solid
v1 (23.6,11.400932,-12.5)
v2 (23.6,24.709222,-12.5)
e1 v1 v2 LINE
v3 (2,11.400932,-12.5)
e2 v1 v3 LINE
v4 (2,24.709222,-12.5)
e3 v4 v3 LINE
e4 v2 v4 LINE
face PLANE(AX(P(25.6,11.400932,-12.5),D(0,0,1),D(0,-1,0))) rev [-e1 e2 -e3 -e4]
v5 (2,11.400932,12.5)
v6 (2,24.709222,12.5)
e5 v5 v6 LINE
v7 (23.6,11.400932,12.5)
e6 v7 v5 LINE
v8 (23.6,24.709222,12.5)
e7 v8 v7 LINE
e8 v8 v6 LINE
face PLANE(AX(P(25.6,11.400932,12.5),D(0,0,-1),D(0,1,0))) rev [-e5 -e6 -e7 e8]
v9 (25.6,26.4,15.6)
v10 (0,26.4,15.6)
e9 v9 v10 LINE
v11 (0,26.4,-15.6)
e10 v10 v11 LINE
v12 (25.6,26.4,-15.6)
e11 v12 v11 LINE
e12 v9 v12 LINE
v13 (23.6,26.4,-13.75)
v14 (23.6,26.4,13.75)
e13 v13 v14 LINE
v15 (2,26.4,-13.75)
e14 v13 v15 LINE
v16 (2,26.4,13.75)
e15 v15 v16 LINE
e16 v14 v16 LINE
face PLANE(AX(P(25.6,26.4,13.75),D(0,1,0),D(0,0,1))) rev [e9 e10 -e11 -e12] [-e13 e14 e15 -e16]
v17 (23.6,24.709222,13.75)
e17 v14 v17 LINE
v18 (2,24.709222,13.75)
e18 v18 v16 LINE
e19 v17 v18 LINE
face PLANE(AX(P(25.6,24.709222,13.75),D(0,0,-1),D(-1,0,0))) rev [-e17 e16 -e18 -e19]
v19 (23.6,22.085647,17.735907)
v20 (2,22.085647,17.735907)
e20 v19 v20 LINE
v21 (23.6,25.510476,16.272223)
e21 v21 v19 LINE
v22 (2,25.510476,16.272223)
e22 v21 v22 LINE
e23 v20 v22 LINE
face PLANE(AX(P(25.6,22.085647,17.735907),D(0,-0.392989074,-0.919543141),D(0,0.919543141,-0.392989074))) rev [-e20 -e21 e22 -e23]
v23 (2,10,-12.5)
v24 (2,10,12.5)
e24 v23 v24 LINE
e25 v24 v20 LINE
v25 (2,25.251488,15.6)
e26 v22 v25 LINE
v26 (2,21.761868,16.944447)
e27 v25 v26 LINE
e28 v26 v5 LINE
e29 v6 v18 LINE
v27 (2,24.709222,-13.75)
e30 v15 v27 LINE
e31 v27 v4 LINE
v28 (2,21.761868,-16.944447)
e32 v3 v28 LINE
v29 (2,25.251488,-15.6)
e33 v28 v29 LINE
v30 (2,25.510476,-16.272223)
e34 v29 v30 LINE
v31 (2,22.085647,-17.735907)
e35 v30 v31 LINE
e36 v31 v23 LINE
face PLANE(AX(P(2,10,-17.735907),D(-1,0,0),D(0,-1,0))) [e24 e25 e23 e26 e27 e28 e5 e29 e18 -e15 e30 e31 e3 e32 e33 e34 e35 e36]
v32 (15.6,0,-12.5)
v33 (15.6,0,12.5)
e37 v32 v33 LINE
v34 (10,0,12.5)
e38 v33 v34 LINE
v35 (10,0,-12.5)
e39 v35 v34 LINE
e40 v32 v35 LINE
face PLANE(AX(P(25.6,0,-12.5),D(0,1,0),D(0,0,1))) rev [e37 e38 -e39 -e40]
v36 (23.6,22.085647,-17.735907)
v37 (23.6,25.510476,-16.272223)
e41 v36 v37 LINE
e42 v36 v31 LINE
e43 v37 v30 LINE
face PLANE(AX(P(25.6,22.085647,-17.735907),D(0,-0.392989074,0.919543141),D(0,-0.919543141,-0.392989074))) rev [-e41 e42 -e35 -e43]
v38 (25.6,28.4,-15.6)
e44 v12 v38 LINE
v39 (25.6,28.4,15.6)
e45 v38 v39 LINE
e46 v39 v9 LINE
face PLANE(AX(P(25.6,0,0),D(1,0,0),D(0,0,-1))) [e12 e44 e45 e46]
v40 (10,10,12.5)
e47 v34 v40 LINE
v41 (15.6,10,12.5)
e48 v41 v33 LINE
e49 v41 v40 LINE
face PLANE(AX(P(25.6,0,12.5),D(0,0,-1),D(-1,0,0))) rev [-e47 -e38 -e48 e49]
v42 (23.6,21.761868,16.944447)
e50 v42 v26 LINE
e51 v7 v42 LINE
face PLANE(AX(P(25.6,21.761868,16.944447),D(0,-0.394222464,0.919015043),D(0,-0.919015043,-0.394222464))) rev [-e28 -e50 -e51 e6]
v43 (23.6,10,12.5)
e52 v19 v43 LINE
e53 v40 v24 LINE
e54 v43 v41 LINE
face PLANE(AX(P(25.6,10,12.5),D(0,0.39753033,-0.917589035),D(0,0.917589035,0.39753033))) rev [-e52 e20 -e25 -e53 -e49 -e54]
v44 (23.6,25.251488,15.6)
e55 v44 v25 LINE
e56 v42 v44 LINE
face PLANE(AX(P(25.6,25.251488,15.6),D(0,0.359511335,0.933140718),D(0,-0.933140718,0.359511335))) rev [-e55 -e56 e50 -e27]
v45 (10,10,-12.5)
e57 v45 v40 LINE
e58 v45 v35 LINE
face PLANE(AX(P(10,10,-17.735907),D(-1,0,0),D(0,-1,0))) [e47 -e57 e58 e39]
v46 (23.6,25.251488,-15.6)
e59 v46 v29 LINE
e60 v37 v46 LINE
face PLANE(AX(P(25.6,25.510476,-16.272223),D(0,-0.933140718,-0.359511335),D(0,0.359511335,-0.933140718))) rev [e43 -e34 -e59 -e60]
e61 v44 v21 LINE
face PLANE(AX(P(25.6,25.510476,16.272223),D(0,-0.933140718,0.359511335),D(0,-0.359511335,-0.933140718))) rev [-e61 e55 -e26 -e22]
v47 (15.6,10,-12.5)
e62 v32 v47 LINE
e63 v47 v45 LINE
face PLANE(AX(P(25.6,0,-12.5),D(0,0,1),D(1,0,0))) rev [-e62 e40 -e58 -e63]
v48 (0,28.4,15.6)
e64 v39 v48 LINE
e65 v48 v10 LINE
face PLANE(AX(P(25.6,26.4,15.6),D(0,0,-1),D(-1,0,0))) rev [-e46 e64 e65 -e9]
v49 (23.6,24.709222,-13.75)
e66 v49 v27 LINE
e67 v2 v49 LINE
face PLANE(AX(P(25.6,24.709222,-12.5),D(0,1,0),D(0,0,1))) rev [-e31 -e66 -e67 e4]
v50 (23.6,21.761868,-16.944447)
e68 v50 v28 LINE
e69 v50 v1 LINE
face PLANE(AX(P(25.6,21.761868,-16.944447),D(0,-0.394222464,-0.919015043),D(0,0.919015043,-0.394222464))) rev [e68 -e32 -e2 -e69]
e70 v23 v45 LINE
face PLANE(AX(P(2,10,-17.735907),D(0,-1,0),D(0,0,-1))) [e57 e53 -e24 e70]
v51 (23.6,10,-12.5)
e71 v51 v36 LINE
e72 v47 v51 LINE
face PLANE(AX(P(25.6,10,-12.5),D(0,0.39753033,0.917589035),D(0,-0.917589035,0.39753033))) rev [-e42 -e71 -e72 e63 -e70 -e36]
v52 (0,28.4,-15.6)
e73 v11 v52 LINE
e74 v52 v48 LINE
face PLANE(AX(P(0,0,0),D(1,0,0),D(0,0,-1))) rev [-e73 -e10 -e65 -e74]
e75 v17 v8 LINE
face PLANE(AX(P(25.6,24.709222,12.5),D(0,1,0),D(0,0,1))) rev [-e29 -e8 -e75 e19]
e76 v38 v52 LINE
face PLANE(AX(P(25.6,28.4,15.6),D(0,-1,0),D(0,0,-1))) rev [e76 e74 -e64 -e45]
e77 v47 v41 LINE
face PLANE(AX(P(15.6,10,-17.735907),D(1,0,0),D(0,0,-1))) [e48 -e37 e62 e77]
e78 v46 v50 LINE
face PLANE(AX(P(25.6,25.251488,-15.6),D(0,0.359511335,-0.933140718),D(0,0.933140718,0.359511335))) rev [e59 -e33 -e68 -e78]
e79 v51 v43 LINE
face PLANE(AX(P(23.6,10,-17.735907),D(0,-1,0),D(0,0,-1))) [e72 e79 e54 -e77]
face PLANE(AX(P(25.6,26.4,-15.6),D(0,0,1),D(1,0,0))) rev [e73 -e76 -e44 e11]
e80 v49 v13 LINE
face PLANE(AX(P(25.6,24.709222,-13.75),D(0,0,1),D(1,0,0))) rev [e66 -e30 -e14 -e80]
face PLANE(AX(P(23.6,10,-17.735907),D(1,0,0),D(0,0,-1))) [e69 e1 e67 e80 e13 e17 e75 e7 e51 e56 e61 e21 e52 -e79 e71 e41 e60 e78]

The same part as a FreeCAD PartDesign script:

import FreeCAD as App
import Part
import Sketcher

doc = App.newDocument("Part")
body = doc.addObject("PartDesign::Body", "Body")

# Sketch on YZ plane
sketch1 = body.newObject("Sketcher::SketchObject", "Sketch")
sketch1.AttachmentSupport = (doc.getObject("YZ_Plane"), [""])
sketch1.MapMode = "FlatFace"
sketch1.addGeometry(Part.LineSegment(App.Vector(0, 12.5, 0), App.Vector(0, -12.5, 0)), False)
sketch1.addGeometry(Part.LineSegment(App.Vector(0, -12.5, 0), App.Vector(10, -12.5, 0)), False)
sketch1.addGeometry(Part.LineSegment(App.Vector(10, -12.5, 0), App.Vector(22.1, -17.7, 0)), False)
sketch1.addGeometry(Part.LineSegment(App.Vector(22.1, -17.7, 0), App.Vector(25.5, -16.3, 0)), False)
sketch1.addGeometry(Part.LineSegment(App.Vector(25.5, -16.3, 0), App.Vector(25.3, -15.6, 0)), False)
sketch1.addGeometry(Part.LineSegment(App.Vector(25.3, -15.6, 0), App.Vector(21.8, -16.9, 0)), False)
sketch1.addGeometry(Part.LineSegment(App.Vector(21.8, -16.9, 0), App.Vector(11.4, -12.5, 0)), False)
sketch1.addGeometry(Part.LineSegment(App.Vector(11.4, -12.5, 0), App.Vector(24.7, -12.5, 0)), False)
sketch1.addGeometry(Part.LineSegment(App.Vector(24.7, -12.5, 0), App.Vector(24.7, -13.8, 0)), False)
sketch1.addGeometry(Part.LineSegment(App.Vector(24.7, -13.8, 0), App.Vector(26.4, -13.8, 0)), False)
sketch1.addGeometry(Part.LineSegment(App.Vector(26.4, -13.8, 0), App.Vector(26.4, -15.6, 0)), False)
sketch1.addGeometry(Part.LineSegment(App.Vector(26.4, -15.6, 0), App.Vector(28.4, -15.6, 0)), False)
sketch1.addGeometry(Part.LineSegment(App.Vector(28.4, -15.6, 0), App.Vector(28.4, 15.6, 0)), False)
sketch1.addGeometry(Part.LineSegment(App.Vector(28.4, 15.6, 0), App.Vector(26.4, 15.6, 0)), False)
sketch1.addGeometry(Part.LineSegment(App.Vector(26.4, 15.6, 0), App.Vector(26.4, 13.8, 0)), False)
sketch1.addGeometry(Part.LineSegment(App.Vector(26.4, 13.8, 0), App.Vector(24.7, 13.8, 0)), False)
sketch1.addGeometry(Part.LineSegment(App.Vector(24.7, 13.8, 0), App.Vector(24.7, 12.5, 0)), False)
sketch1.addGeometry(Part.LineSegment(App.Vector(24.7, 12.5, 0), App.Vector(11.4, 12.5, 0)), False)
sketch1.addGeometry(Part.LineSegment(App.Vector(11.4, 12.5, 0), App.Vector(21.8, 16.9, 0)), False)
sketch1.addGeometry(Part.LineSegment(App.Vector(21.8, 16.9, 0), App.Vector(25.3, 15.6, 0)), False)
sketch1.addGeometry(Part.LineSegment(App.Vector(25.3, 15.6, 0), App.Vector(25.5, 16.3, 0)), False)
sketch1.addGeometry(Part.LineSegment(App.Vector(25.5, 16.3, 0), App.Vector(22.1, 17.7, 0)), False)
sketch1.addGeometry(Part.LineSegment(App.Vector(22.1, 17.7, 0), App.Vector(10, 12.5, 0)), False)
sketch1.addGeometry(Part.LineSegment(App.Vector(10, 12.5, 0), App.Vector(0, 12.5, 0)), False)
sketch1.addConstraint(Sketcher.Constraint("Coincident", 0, 2, 1, 1))
sketch1.addConstraint(Sketcher.Constraint("Coincident", 1, 2, 2, 1))
sketch1.addConstraint(Sketcher.Constraint("Coincident", 2, 2, 3, 1))
sketch1.addConstraint(Sketcher.Constraint("Coincident", 3, 2, 4, 1))
sketch1.addConstraint(Sketcher.Constraint("Coincident", 4, 2, 5, 1))
sketch1.addConstraint(Sketcher.Constraint("Coincident", 5, 2, 6, 1))
sketch1.addConstraint(Sketcher.Constraint("Coincident", 6, 2, 7, 1))
sketch1.addConstraint(Sketcher.Constraint("Coincident", 7, 2, 8, 1))
sketch1.addConstraint(Sketcher.Constraint("Coincident", 8, 2, 9, 1))
sketch1.addConstraint(Sketcher.Constraint("Coincident", 9, 2, 10, 1))
sketch1.addConstraint(Sketcher.Constraint("Coincident", 10, 2, 11, 1))
sketch1.addConstraint(Sketcher.Constraint("Coincident", 11, 2, 12, 1))
sketch1.addConstraint(Sketcher.Constraint("Coincident", 12, 2, 13, 1))
sketch1.addConstraint(Sketcher.Constraint("Coincident", 13, 2, 14, 1))
sketch1.addConstraint(Sketcher.Constraint("Coincident", 14, 2, 15, 1))
sketch1.addConstraint(Sketcher.Constraint("Coincident", 15, 2, 16, 1))
sketch1.addConstraint(Sketcher.Constraint("Coincident", 16, 2, 17, 1))
sketch1.addConstraint(Sketcher.Constraint("Coincident", 17, 2, 18, 1))
sketch1.addConstraint(Sketcher.Constraint("Coincident", 18, 2, 19, 1))
sketch1.addConstraint(Sketcher.Constraint("Coincident", 19, 2, 20, 1))
sketch1.addConstraint(Sketcher.Constraint("Coincident", 20, 2, 21, 1))
sketch1.addConstraint(Sketcher.Constraint("Coincident", 21, 2, 22, 1))
sketch1.addConstraint(Sketcher.Constraint("Coincident", 22, 2, 23, 1))
sketch1.addConstraint(Sketcher.Constraint("Coincident", 23, 2, 0, 1))
sketch1.addConstraint(Sketcher.Constraint("Vertical", 0))
sketch1.addConstraint(Sketcher.Constraint("Horizontal", 1))
sketch1.addConstraint(Sketcher.Constraint("Horizontal", 7))
sketch1.addConstraint(Sketcher.Constraint("Vertical", 8))
sketch1.addConstraint(Sketcher.Constraint("Horizontal", 9))
sketch1.addConstraint(Sketcher.Constraint("Vertical", 10))
sketch1.addConstraint(Sketcher.Constraint("Horizontal", 11))
sketch1.addConstraint(Sketcher.Constraint("Vertical", 12))
sketch1.addConstraint(Sketcher.Constraint("Horizontal", 13))
sketch1.addConstraint(Sketcher.Constraint("Vertical", 14))
sketch1.addConstraint(Sketcher.Constraint("Horizontal", 15))
sketch1.addConstraint(Sketcher.Constraint("Vertical", 16))
sketch1.addConstraint(Sketcher.Constraint("Horizontal", 17))
sketch1.addConstraint(Sketcher.Constraint("Horizontal", 23))
sketch1.addConstraint(Sketcher.Constraint("Symmetric", 0, 2, 23, 2, -1, 1))
sketch1.addConstraint(Sketcher.Constraint("Symmetric", 10, 2, 13, 2, -1))
sketch1.addConstraint(Sketcher.Constraint("Symmetric", 8, 2, 15, 2, -1))
sketch1.addConstraint(Sketcher.Constraint("Symmetric", 6, 2, 17, 2, -1))
sketch1.addConstraint(Sketcher.Constraint("Symmetric", 5, 2, 18, 2, -1))
sketch1.addConstraint(Sketcher.Constraint("Symmetric", 4, 2, 19, 2, -1))
sketch1.addConstraint(Sketcher.Constraint("Symmetric", 3, 2, 20, 2, -1))
sketch1.addConstraint(Sketcher.Constraint("Symmetric", 2, 2, 21, 2, -1))
sketch1.addConstraint(Sketcher.Constraint("Perpendicular", 4, 5))
sketch1.addConstraint(Sketcher.Constraint("Horizontal", 1, 2, 6, 2))
sketch1.addConstraint(Sketcher.Constraint("Horizontal", 4, 2, 10, 2))
sketch1.addConstraint(Sketcher.Constraint("Vertical", 1, 2, 22, 2))
sketch1.addConstraint(Sketcher.Constraint("DistanceX", 1, 1, 1, 2, 10.0))
sketch1.addConstraint(Sketcher.Constraint("DistanceX", 11, 1, 11, 2, 2.0))
sketch1.addConstraint(Sketcher.Constraint("DistanceY", 0, 2, 0, 1, 25.0))
sketch1.addConstraint(Sketcher.Constraint("DistanceY", 12, 1, 12, 2, 31.2))
sketch1.addConstraint(Sketcher.Constraint("DistanceY", 8, 2, 8, 1, 1.25))
sketch1.addConstraint(Sketcher.Constraint("DistanceX", -1, 1, 9, 2, 26.4))
sketch1.addConstraint(Sketcher.Constraint("DistanceX", 7, 1, 7, 2, 13.30829))
sketch1.addConstraint(Sketcher.Constraint("DistanceX", 9, 1, 9, 2, 1.690778))
sketch1.addConstraint(Sketcher.Constraint("Distance", 2, 13.171089))
sketch1.addConstraint(Sketcher.Constraint("Distance", 3, 3.72449))
sketch1.addConstraint(Sketcher.Constraint("Distance", 4, 0.720388))
sketch1.addConstraint(Sketcher.Constraint("Distance", 5, 3.739651))
sketch1.addConstraint(Sketcher.Constraint("DistanceX", -1, 1, 4, 2, 25.251488))
sketch1.addConstraint(Sketcher.Constraint("DistanceX", 2, 2, 3, 2, 3.424829))
pad1 = body.newObject("PartDesign::Pad", "Pad")
pad1.Profile = sketch1
pad1.Length = 25.6

# Sketch on XY plane
sketch2 = body.newObject("Sketcher::SketchObject", "Sketch001")
sketch2.AttachmentSupport = (doc.getObject("XY_Plane"), [""])
sketch2.MapMode = "FlatFace"
sketch2.AttachmentOffset = App.Placement(App.Vector(0, 0, 12.5), App.Rotation())
sketch2.addGeometry(Part.LineSegment(App.Vector(-6.2, 34.6, 0), App.Vector(-6.2, -6.2, 0)), False)
sketch2.addGeometry(Part.LineSegment(App.Vector(-6.2, -6.2, 0), App.Vector(31.8, -6.2, 0)), False)
sketch2.addGeometry(Part.LineSegment(App.Vector(31.8, -6.2, 0), App.Vector(31.8, 34.6, 0)), False)
sketch2.addGeometry(Part.LineSegment(App.Vector(31.8, 34.6, 0), App.Vector(-6.2, 34.6, 0)), False)
sketch2.addGeometry(Part.LineSegment(App.Vector(10, 10, 0), App.Vector(2, 10, 0)), False)
sketch2.addGeometry(Part.LineSegment(App.Vector(2, 10, 0), App.Vector(2, 26.4, 0)), False)
sketch2.addGeometry(Part.LineSegment(App.Vector(2, 26.4, 0), App.Vector(0, 26.4, 0)), False)
sketch2.addGeometry(Part.LineSegment(App.Vector(0, 26.4, 0), App.Vector(0, 28.4, 0)), False)
sketch2.addGeometry(Part.LineSegment(App.Vector(0, 28.4, 0), App.Vector(25.6, 28.4, 0)), False)
sketch2.addGeometry(Part.LineSegment(App.Vector(25.6, 28.4, 0), App.Vector(25.6, 26.4, 0)), False)
sketch2.addGeometry(Part.LineSegment(App.Vector(25.6, 26.4, 0), App.Vector(23.6, 26.4, 0)), False)
sketch2.addGeometry(Part.LineSegment(App.Vector(23.6, 26.4, 0), App.Vector(23.6, 10, 0)), False)
sketch2.addGeometry(Part.LineSegment(App.Vector(23.6, 10, 0), App.Vector(15.6, 10, 0)), False)
sketch2.addGeometry(Part.LineSegment(App.Vector(15.6, 10, 0), App.Vector(15.6, 0, 0)), False)
sketch2.addGeometry(Part.LineSegment(App.Vector(15.6, 0, 0), App.Vector(10, 0, 0)), False)
sketch2.addGeometry(Part.LineSegment(App.Vector(10, 0, 0), App.Vector(10, 10, 0)), False)
sketch2.addConstraint(Sketcher.Constraint("Coincident", 0, 2, 1, 1))
sketch2.addConstraint(Sketcher.Constraint("Coincident", 1, 2, 2, 1))
sketch2.addConstraint(Sketcher.Constraint("Coincident", 2, 2, 3, 1))
sketch2.addConstraint(Sketcher.Constraint("Coincident", 3, 2, 0, 1))
sketch2.addConstraint(Sketcher.Constraint("Coincident", 4, 2, 5, 1))
sketch2.addConstraint(Sketcher.Constraint("Coincident", 5, 2, 6, 1))
sketch2.addConstraint(Sketcher.Constraint("Coincident", 6, 2, 7, 1))
sketch2.addConstraint(Sketcher.Constraint("Coincident", 7, 2, 8, 1))
sketch2.addConstraint(Sketcher.Constraint("Coincident", 8, 2, 9, 1))
sketch2.addConstraint(Sketcher.Constraint("Coincident", 9, 2, 10, 1))
sketch2.addConstraint(Sketcher.Constraint("Coincident", 10, 2, 11, 1))
sketch2.addConstraint(Sketcher.Constraint("Coincident", 11, 2, 12, 1))
sketch2.addConstraint(Sketcher.Constraint("Coincident", 12, 2, 13, 1))
sketch2.addConstraint(Sketcher.Constraint("Coincident", 13, 2, 14, 1))
sketch2.addConstraint(Sketcher.Constraint("Coincident", 14, 2, 15, 1))
sketch2.addConstraint(Sketcher.Constraint("Coincident", 15, 2, 4, 1))
sketch2.addConstraint(Sketcher.Constraint("Vertical", 0))
sketch2.addConstraint(Sketcher.Constraint("Horizontal", 1))
sketch2.addConstraint(Sketcher.Constraint("Vertical", 2))
sketch2.addConstraint(Sketcher.Constraint("Horizontal", 3))
sketch2.addConstraint(Sketcher.Constraint("Horizontal", 4))
sketch2.addConstraint(Sketcher.Constraint("Vertical", 5))
sketch2.addConstraint(Sketcher.Constraint("Horizontal", 6))
sketch2.addConstraint(Sketcher.Constraint("Vertical", 7))
sketch2.addConstraint(Sketcher.Constraint("Horizontal", 8))
sketch2.addConstraint(Sketcher.Constraint("Vertical", 9))
sketch2.addConstraint(Sketcher.Constraint("Horizontal", 10))
sketch2.addConstraint(Sketcher.Constraint("Vertical", 11))
sketch2.addConstraint(Sketcher.Constraint("Horizontal", 12))
sketch2.addConstraint(Sketcher.Constraint("Vertical", 13))
sketch2.addConstraint(Sketcher.Constraint("Horizontal", 14))
sketch2.addConstraint(Sketcher.Constraint("Vertical", 15))
sketch2.addConstraint(Sketcher.Constraint("PointOnObject", 6, 2, -2))
sketch2.addConstraint(Sketcher.Constraint("PointOnObject", 13, 2, -1))
sketch2.addConstraint(Sketcher.Constraint("Horizontal", 6, 2, 9, 2))
sketch2.addConstraint(Sketcher.Constraint("Horizontal", 4, 2, 11, 2))
sketch2.addConstraint(Sketcher.Constraint("Equal", 6, 10))
sketch2.addConstraint(Sketcher.Constraint("Equal", 4, 12))
sketch2.addConstraint(Sketcher.Constraint("Equal", 10, 7))
sketch2.addConstraint(Sketcher.Constraint("DistanceX", 4, 2, 4, 1, 8.0))
sketch2.addConstraint(Sketcher.Constraint("DistanceX", 6, 2, 6, 1, 2.0))
sketch2.addConstraint(Sketcher.Constraint("DistanceY", 13, 2, 13, 1, 10.0))
sketch2.addConstraint(Sketcher.Constraint("DistanceX", 8, 1, 8, 2, 25.6))
sketch2.addConstraint(Sketcher.Constraint("DistanceY", 5, 1, 5, 2, 16.4))
sketch2.addConstraint(Sketcher.Constraint("DistanceX", 1, 1, 1, 2, 38.032))
sketch2.addConstraint(Sketcher.Constraint("DistanceY", 0, 2, 0, 1, 40.832))
sketch2.addConstraint(Sketcher.Constraint("DistanceX", 0, 2, -1, 1, 6.216))
sketch2.addConstraint(Sketcher.Constraint("DistanceY", 0, 2, -1, 1, 6.216))
pocket1 = body.newObject("PartDesign::Pocket", "Pocket")
pocket1.Profile = sketch2
pocket1.Type = "ThroughAll"
pocket1.Midplane = True

doc.recompute()
